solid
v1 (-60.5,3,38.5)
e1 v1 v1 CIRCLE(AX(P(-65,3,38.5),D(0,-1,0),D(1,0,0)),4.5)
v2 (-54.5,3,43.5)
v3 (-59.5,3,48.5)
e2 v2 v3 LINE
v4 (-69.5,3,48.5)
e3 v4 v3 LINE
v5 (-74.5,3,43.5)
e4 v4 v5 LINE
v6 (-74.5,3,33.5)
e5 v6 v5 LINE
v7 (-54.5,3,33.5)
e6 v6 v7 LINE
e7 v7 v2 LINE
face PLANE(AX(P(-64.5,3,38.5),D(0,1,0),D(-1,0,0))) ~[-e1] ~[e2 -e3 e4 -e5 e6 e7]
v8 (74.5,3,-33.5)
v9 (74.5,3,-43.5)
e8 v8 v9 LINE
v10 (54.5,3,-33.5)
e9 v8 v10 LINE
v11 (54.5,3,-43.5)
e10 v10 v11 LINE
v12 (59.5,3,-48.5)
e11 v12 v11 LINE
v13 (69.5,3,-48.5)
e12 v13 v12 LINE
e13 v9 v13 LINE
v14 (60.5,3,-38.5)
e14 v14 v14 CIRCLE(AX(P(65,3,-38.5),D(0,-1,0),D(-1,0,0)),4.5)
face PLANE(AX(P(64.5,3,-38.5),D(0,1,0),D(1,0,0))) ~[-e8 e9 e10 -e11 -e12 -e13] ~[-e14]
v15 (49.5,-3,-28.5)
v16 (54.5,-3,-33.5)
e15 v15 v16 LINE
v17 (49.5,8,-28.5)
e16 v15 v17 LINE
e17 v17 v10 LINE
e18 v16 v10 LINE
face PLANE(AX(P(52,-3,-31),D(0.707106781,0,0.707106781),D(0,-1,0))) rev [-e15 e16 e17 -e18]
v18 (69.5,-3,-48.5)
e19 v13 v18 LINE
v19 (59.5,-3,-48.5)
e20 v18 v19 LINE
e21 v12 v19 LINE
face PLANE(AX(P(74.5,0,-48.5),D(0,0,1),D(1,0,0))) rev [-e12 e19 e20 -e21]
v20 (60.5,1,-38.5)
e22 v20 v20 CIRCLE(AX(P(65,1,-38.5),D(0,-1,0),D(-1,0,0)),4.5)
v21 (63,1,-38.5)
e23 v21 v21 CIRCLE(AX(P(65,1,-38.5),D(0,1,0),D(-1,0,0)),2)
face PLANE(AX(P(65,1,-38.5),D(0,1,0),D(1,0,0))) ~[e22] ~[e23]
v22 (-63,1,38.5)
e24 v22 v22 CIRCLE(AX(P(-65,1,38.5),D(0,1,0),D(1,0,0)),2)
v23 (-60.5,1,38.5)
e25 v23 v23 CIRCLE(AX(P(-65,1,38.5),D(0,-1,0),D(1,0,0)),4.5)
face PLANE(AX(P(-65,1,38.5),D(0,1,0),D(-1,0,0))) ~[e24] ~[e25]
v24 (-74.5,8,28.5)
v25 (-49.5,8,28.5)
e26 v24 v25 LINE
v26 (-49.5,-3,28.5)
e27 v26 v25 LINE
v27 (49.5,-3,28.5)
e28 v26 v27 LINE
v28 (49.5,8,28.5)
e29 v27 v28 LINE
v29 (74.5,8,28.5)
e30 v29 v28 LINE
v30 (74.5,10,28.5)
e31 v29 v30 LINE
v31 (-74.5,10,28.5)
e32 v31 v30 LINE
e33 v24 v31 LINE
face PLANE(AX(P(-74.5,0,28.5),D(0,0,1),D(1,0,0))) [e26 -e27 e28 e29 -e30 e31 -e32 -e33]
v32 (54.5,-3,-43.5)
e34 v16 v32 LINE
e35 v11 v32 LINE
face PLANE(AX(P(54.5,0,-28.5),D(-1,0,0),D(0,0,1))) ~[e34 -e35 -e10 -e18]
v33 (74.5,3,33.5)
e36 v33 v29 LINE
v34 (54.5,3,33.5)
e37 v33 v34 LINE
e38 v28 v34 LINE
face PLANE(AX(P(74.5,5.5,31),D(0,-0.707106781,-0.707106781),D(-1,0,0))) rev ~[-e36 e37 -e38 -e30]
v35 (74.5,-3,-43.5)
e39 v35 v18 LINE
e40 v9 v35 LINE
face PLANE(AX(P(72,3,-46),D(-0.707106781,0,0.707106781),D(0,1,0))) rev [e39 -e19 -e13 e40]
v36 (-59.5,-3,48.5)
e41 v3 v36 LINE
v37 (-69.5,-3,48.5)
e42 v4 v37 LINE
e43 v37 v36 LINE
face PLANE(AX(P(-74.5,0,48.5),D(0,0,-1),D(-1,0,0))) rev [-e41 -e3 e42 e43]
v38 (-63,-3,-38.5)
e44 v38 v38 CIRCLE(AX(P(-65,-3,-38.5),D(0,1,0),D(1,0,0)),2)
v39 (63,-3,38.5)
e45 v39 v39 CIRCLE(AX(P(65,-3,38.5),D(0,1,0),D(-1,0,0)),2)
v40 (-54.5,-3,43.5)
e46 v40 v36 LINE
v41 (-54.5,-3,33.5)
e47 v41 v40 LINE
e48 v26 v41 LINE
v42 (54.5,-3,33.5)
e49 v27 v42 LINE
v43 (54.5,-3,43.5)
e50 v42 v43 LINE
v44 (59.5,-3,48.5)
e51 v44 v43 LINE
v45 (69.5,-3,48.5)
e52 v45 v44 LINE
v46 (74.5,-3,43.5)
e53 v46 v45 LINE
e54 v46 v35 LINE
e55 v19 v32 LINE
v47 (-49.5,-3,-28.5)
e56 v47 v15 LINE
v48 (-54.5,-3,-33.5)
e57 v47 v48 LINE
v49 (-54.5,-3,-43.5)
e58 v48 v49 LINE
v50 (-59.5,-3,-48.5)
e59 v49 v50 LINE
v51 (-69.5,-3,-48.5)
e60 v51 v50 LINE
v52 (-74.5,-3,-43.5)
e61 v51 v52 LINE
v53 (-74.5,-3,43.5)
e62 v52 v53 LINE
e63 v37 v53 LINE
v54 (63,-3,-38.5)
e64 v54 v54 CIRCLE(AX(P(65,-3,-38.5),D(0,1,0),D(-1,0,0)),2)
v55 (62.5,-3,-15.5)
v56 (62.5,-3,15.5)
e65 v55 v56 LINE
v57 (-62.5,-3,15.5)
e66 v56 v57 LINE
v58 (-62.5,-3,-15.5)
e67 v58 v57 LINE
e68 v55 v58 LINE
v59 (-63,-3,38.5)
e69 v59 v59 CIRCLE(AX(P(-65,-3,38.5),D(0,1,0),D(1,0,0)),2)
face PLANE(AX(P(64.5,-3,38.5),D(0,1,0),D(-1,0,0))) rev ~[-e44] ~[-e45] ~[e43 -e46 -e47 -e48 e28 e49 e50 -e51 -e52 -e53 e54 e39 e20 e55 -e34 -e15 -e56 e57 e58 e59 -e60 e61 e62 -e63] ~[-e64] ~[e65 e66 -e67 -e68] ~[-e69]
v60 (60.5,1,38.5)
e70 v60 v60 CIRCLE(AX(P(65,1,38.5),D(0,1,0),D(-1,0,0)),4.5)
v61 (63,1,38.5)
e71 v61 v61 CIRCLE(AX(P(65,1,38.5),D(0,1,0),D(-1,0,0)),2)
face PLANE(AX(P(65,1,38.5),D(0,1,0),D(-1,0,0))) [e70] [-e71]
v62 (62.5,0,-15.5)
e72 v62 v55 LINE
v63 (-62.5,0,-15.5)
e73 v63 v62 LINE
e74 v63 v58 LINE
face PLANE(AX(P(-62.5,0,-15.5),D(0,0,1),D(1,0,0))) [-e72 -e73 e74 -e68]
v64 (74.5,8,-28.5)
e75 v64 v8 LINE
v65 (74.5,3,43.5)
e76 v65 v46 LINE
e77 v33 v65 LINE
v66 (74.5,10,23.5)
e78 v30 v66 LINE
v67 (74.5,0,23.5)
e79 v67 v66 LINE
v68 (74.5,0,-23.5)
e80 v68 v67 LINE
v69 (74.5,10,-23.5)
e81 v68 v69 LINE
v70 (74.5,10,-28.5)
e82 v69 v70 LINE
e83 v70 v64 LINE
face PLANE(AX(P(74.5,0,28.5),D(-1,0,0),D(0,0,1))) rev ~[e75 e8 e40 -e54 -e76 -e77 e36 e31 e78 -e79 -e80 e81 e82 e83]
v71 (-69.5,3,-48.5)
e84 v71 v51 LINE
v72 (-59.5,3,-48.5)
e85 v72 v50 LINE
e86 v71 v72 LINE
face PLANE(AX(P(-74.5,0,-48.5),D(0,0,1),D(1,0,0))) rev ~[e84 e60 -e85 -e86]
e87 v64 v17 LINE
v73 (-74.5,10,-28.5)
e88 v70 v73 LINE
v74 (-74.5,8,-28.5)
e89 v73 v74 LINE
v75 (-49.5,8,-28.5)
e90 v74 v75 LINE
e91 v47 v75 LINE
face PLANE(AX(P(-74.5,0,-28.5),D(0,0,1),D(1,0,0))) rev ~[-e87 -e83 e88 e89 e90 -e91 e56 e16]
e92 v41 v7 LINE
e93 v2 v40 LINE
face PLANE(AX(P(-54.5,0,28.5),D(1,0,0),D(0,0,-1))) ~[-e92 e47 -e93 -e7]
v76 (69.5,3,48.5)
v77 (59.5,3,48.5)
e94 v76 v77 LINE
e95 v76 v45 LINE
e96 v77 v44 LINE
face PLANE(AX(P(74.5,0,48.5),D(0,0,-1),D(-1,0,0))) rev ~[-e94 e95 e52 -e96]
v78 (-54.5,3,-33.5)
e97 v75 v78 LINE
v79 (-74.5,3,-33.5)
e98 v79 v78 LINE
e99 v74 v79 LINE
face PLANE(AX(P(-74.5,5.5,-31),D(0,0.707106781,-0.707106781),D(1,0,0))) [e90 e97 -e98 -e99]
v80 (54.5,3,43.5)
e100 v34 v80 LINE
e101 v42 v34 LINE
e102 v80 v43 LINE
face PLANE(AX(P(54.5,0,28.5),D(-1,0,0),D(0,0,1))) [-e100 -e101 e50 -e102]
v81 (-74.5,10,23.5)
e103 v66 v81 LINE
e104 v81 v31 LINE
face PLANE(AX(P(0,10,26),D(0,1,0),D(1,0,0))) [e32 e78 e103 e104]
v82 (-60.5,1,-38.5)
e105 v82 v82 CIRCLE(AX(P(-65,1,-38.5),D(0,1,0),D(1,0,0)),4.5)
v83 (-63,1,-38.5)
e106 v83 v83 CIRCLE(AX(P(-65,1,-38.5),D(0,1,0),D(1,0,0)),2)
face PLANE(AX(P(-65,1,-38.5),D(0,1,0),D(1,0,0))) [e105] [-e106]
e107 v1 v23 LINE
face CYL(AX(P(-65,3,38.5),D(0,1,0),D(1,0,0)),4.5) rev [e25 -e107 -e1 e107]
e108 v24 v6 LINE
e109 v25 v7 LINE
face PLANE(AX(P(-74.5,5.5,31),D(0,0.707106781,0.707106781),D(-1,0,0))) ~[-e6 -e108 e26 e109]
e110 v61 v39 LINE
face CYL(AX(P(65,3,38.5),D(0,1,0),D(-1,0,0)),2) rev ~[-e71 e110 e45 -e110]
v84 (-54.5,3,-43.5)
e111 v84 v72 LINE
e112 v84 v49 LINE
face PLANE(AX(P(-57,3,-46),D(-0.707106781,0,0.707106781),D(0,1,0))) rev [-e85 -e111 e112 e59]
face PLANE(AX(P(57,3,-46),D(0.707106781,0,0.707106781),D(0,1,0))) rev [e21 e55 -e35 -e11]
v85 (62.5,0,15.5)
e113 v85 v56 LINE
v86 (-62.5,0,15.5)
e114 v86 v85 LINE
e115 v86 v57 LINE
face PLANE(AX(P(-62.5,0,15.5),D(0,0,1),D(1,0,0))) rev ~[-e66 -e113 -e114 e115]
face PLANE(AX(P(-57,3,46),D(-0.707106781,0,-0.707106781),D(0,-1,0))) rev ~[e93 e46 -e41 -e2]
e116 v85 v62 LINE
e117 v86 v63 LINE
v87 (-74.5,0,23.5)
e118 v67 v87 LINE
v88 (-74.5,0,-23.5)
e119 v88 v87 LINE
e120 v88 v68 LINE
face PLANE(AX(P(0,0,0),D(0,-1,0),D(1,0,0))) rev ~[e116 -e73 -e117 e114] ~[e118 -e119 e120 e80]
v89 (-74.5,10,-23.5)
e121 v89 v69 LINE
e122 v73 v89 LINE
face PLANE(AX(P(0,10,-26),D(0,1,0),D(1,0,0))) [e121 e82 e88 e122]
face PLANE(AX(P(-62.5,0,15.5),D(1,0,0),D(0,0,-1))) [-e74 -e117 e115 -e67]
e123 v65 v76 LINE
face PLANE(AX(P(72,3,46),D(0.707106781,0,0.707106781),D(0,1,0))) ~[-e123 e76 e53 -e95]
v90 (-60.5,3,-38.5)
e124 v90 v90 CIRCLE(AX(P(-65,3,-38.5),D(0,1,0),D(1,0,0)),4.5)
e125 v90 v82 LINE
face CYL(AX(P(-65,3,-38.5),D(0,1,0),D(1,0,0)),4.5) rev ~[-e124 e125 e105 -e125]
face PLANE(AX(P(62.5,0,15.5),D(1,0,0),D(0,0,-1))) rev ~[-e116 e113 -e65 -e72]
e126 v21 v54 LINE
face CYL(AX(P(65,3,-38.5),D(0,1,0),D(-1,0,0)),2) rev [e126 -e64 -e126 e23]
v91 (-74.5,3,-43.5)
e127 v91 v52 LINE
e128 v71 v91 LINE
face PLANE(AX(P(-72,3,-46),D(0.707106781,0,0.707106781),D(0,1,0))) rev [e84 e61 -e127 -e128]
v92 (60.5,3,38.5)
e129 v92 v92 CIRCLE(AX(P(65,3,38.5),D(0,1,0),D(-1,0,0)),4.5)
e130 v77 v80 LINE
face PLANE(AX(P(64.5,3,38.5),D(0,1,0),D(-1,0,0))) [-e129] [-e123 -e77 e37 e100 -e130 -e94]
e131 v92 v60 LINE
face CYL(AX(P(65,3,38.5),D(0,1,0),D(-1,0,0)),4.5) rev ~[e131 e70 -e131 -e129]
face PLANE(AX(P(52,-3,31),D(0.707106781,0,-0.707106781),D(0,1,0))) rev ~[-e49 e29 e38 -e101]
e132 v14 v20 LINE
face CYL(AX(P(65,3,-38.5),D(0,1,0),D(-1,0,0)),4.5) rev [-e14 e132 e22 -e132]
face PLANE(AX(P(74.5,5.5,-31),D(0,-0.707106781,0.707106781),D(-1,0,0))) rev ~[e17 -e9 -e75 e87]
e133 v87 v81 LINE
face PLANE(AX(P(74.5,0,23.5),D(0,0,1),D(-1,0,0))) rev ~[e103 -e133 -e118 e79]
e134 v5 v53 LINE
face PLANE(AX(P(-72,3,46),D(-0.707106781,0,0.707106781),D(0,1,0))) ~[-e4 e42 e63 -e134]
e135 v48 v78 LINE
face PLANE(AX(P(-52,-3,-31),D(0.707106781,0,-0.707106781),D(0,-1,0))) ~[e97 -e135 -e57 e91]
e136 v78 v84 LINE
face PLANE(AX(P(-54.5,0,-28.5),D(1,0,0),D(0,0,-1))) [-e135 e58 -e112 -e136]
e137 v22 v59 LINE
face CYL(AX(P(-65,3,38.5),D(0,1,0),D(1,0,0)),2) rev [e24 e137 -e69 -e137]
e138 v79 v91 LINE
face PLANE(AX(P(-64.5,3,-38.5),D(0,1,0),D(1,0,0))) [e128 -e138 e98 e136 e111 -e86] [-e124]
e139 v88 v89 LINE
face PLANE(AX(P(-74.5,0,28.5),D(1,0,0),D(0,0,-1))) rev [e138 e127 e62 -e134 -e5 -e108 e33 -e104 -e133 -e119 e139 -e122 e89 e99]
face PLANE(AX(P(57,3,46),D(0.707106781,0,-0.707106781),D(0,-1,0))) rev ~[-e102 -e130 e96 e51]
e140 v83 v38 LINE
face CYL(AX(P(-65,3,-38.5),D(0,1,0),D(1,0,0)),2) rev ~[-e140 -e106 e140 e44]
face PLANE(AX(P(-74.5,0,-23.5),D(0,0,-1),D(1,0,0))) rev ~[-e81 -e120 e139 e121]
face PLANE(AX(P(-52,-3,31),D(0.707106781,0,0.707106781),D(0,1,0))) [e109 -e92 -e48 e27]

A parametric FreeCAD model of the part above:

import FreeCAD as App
import Part
import Sketcher

V = App.Vector


def edges_at(feature, points):
    """Names of the edges that pass closest to the given points."""
    edges = feature.Shape.Edges
    near = lambda p: min(range(len(edges)), key=lambda i: edges[i].distToShape(Part.Vertex(*p))[0])
    return sorted({f"Edge{near(p) + 1}" for p in points})

doc = App.newDocument("Part")
body = doc.addObject("PartDesign::Body", "Body")

sketch1 = body.newObject("Sketcher::SketchObject", "Sketch")
sketch1.AttachmentSupport = (doc.getObject("XZ_Plane"), [""])
sketch1.MapMode = "FlatFace"
sketch1.addGeometry([
    Part.LineSegment(V(74, -28, 0), V(-74, -28, 0)),
    Part.LineSegment(V(-74, -28, 0), V(-74, -24, 0)),
    Part.LineSegment(V(-74, -24, 0), V(74, -24, 0)),
    Part.LineSegment(V(74, -24, 0), V(74, -28, 0)),
], False)
sketch1.addConstraint([
    Sketcher.Constraint("Coincident", 0, 2, 1, 1),
    Sketcher.Constraint("Coincident", 1, 2, 2, 1),
    Sketcher.Constraint("Coincident", 2, 2, 3, 1),
    Sketcher.Constraint("Coincident", 3, 2, 0, 1),
    Sketcher.Constraint("Horizontal", 0),
    Sketcher.Constraint("Vertical", 1),
    Sketcher.Constraint("Horizontal", 2),
    Sketcher.Constraint("Vertical", 3),
    Sketcher.Constraint("DistanceX", 0, 2, 0, 1, 149.0),
    Sketcher.Constraint("DistanceY", 1, 1, 1, 2, 5.0),
    Sketcher.Constraint("DistanceX", 0, 2, -1, 1, 74.5),
    Sketcher.Constraint("DistanceY", 0, 2, -1, 1, 28.5),
])
pad1 = body.newObject("PartDesign::Pad", "Pad")
pad1.Profile = sketch1
pad1.Length = 10
pad1.Reversed = True
body2 = doc.addObject("PartDesign::Body", "Body001")

sketch2 = body2.newObject("Sketcher::SketchObject", "Sketch001")
sketch2.AttachmentSupport = (doc.getObject("XZ_Plane001"), [""])
sketch2.MapMode = "FlatFace"
sketch2.addGeometry([
    Part.LineSegment(V(-74, 24, 0), V(-74, 28, 0)),
    Part.LineSegment(V(-74, 28, 0), V(74, 28, 0)),
    Part.LineSegment(V(74, 28, 0), V(74, 24, 0)),
    Part.LineSegment(V(74, 24, 0), V(-74, 24, 0)),
], False)
sketch2.addConstraint([
    Sketcher.Constraint("Coincident", 0, 2, 1, 1),
    Sketcher.Constraint("Coincident", 1, 2, 2, 1),
    Sketcher.Constraint("Coincident", 2, 2, 3, 1),
    Sketcher.Constraint("Coincident", 3, 2, 0, 1),
    Sketcher.Constraint("Vertical", 0),
    Sketcher.Constraint("Horizontal", 1),
    Sketcher.Constraint("Vertical", 2),
    Sketcher.Constraint("Horizontal", 3),
    Sketcher.Constraint("DistanceX", 1, 1, 1, 2, 149.0),
    Sketcher.Constraint("DistanceY", 0, 1, 0, 2, 5.0),
    Sketcher.Constraint("DistanceX", 0, 2, -1, 1, 74.5),
    Sketcher.Constraint("DistanceY", -1, 1, 0, 2, 28.5),
])
pad2 = body2.newObject("PartDesign::Pad", "Pad001")
pad2.Profile = sketch2
pad2.Length = 10
pad2.Reversed = True
body.AllowCompound = True
doc.recompute()

boolean = body.newObject("PartDesign::Boolean", "Boolean")
boolean.Type = "Fuse"
boolean.addObjects([body2])

sketch3 = body.newObject("Sketcher::SketchObject", "Sketch002")
sketch3.AttachmentSupport = (doc.getObject("XZ_Plane"), [""])
sketch3.MapMode = "FlatFace"
sketch3.addGeometry([
    Part.LineSegment(V(-74, 28, 0), V(-74, -28, 0)),
    Part.LineSegment(V(-74, -28, 0), V(74, -28, 0)),
    Part.LineSegment(V(74, -28, 0), V(74, 28, 0)),
    Part.LineSegment(V(74, 28, 0), V(-74, 28, 0)),
], False)
sketch3.addConstraint([
    Sketcher.Constraint("Coincident", 0, 2, 1, 1),
    Sketcher.Constraint("Coincident", 1, 2, 2, 1),
    Sketcher.Constraint("Coincident", 2, 2, 3, 1),
    Sketcher.Constraint("Coincident", 3, 2, 0, 1),
    Sketcher.Constraint("Vertical", 0),
    Sketcher.Constraint("Horizontal", 1),
    Sketcher.Constraint("Vertical", 2),
    Sketcher.Constraint("Horizontal", 3),
    Sketcher.Constraint("Symmetric", 0, 2, 2, 2, -1, 1),
    Sketcher.Constraint("DistanceX", 1, 1, 1, 2, 149.0),
    Sketcher.Constraint("DistanceY", 0, 2, 0, 1, 57.0),
])
pad3 = body.newObject("PartDesign::Pad", "Pad002")
pad3.Profile = sketch3
pad3.Length = 3

sketch4 = body.newObject("Sketcher::SketchObject", "Sketch003")
sketch4.AttachmentSupport = (doc.getObject("XZ_Plane"), [""])
sketch4.MapMode = "FlatFace"
sketch4.addGeometry([
    Part.LineSegment(V(-62, -16, 0), V(-62, 16, 0)),
    Part.LineSegment(V(-62, 16, 0), V(62, 16, 0)),
    Part.LineSegment(V(62, 16, 0), V(62, -16, 0)),
    Part.LineSegment(V(62, -16, 0), V(-62, -16, 0)),
], False)
sketch4.addConstraint([
    Sketcher.Constraint("Coincident", 0, 2, 1, 1),
    Sketcher.Constraint("Coincident", 1, 2, 2, 1),
    Sketcher.Constraint("Coincident", 2, 2, 3, 1),
    Sketcher.Constraint("Coincident", 3, 2, 0, 1),
    Sketcher.Constraint("Vertical", 0),
    Sketcher.Constraint("Horizontal", 1),
    Sketcher.Constraint("Vertical", 2),
    Sketcher.Constraint("Horizontal", 3),
    Sketcher.Constraint("Symmetric", 0, 2, 2, 2, -1, 1),
    Sketcher.Constraint("DistanceX", 1, 1, 1, 2, 125.0),
    Sketcher.Constraint("DistanceY", 0, 1, 0, 2, 31.0),
])
pocket1 = body.newObject("PartDesign::Pocket", "Pocket")
pocket1.Profile = sketch4
pocket1.Length = 20
pocket1.Reversed = True

sketch5 = body.newObject("Sketcher::SketchObject", "Sketch004")
sketch5.AttachmentSupport = (doc.getObject("XZ_Plane"), [""])
sketch5.MapMode = "FlatFace"
sketch5.addGeometry([
    Part.LineSegment(V(-74, -48, 0), V(-74, -28, 0)),
    Part.LineSegment(V(-74, -28, 0), V(-54, -28, 0)),
    Part.LineSegment(V(-54, -28, 0), V(-54, -48, 0)),
    Part.LineSegment(V(-54, -48, 0), V(-74, -48, 0)),
], False)
sketch5.addConstraint([
    Sketcher.Constraint("Coincident", 0, 2, 1, 1),
    Sketcher.Constraint("Coincident", 1, 2, 2, 1),
    Sketcher.Constraint("Coincident", 2, 2, 3, 1),
    Sketcher.Constraint("Coincident", 3, 2, 0, 1),
    Sketcher.Constraint("Vertical", 0),
    Sketcher.Constraint("Horizontal", 1),
    Sketcher.Constraint("Vertical", 2),
    Sketcher.Constraint("Horizontal", 3),
    Sketcher.Constraint("Equal", 3, 0),
    Sketcher.Constraint("DistanceX", 1, 1, 1, 2, 20.0),
    Sketcher.Constraint("DistanceX", 0, 2, -1, 1, 74.5),
    Sketcher.Constraint("DistanceY", 0, 2, -1, 1, 28.5),
])
pad4 = body.newObject("PartDesign::Pad", "Pad003")
pad4.Profile = sketch5
pad4.Length = 6
pad4.Midplane = True

sketch6 = body.newObject("Sketcher::SketchObject", "Sketch005")
sketch6.AttachmentSupport = (doc.getObject("XZ_Plane"), [""])
sketch6.MapMode = "FlatFace"
sketch6.AttachmentOffset = App.Placement(V(0, 0, -3), App.Rotation())
sketch6.addGeometry(Part.Circle(V(-65, -38.5, 0), V(0, 0, 1), 2), False)
sketch6.addConstraint([
    Sketcher.Constraint("Diameter", 0, 4.0),
    Sketcher.Constraint("DistanceX", 0, 3, -1, 1, 65.0),
    Sketcher.Constraint("DistanceY", 0, 3, -1, 1, 38.5),
])
pocket2 = body.newObject("PartDesign::Pocket", "Pocket001")
pocket2.Profile = sketch6
pocket2.Length = 20
pocket2.Reversed = True

sketch7 = body.newObject("Sketcher::SketchObject", "Sketch006")
sketch7.AttachmentSupport = (doc.getObject("XZ_Plane"), [""])
sketch7.MapMode = "FlatFace"
sketch7.AttachmentOffset = App.Placement(V(0, 0, -3), App.Rotation())
sketch7.addGeometry(Part.Circle(V(-65, -38.5, 0), V(0, 0, 1), 4.5), False)
sketch7.addConstraint([
    Sketcher.Constraint("Diameter", 0, 9.0),
    Sketcher.Constraint("DistanceX", 0, 3, -1, 1, 65.0),
    Sketcher.Constraint("DistanceY", 0, 3, -1, 1, 38.5),
])
pocket3 = body.newObject("PartDesign::Pocket", "Pocket002")
pocket3.Profile = sketch7
pocket3.Length = 2
pocket3.Reversed = True
doc.recompute()

mirrored = body.newObject("PartDesign::Mirrored", "Mirrored")
mirrored.Originals = [pad4, pocket2, pocket3]
mirrored.MirrorPlane = (doc.getObject("XY_Plane"), [""])
body.Tip = mirrored
doc.recompute()

mirrored2 = body.newObject("PartDesign::Mirrored", "Mirrored001")
mirrored2.Originals = [pad4, pocket3, pocket2]
mirrored2.MirrorPlane = (doc.getObject("YZ_Plane"), [""])
body.Tip = mirrored2

sketch8 = body.newObject("Sketcher::SketchObject", "Sketch007")
sketch8.AttachmentSupport = (doc.getObject("XZ_Plane"), [""])
sketch8.MapMode = "FlatFace"
sketch8.addGeometry([
    Part.LineSegment(V(74, 48, 0), V(74, 28, 0)),
    Part.LineSegment(V(74, 28, 0), V(54, 28, 0)),
    Part.LineSegment(V(54, 28, 0), V(54, 48, 0)),
    Part.LineSegment(V(54, 48, 0), V(74, 48, 0)),
], False)
sketch8.addConstraint([
    Sketcher.Constraint("Coincident", 0, 2, 1, 1),
    Sketcher.Constraint("Coincident", 1, 2, 2, 1),
    Sketcher.Constraint("Coincident", 2, 2, 3, 1),
    Sketcher.Constraint("Coincident", 3, 2, 0, 1),
    Sketcher.Constraint("Vertical", 0),
    Sketcher.Constraint("Horizontal", 1),
    Sketcher.Constraint("Vertical", 2),
    Sketcher.Constraint("Horizontal", 3),
    Sketcher.Constraint("Equal", 3, 0),
    Sketcher.Constraint("DistanceX", 1, 2, 1, 1, 20.0),
    Sketcher.Constraint("DistanceX", -1, 1, 0, 2, 74.5),
    Sketcher.Constraint("DistanceY", -1, 1, 0, 2, 28.5),
])
pad5 = body.newObject("PartDesign::Pad", "Pad004")
pad5.Profile = sketch8
pad5.Length = 6
pad5.Midplane = True

sketch9 = body.newObject("Sketcher::SketchObject", "Sketch008")
sketch9.AttachmentSupport = (doc.getObject("XZ_Plane"), [""])
sketch9.MapMode = "FlatFace"
sketch9.AttachmentOffset = App.Placement(V(0, 0, -3), App.Rotation())
sketch9.addGeometry(Part.Circle(V(65, 38.5, 0), V(0, 0, 1), 2), False)
sketch9.addConstraint([
    Sketcher.Constraint("Diameter", 0, 4.0),
    Sketcher.Constraint("DistanceX", -1, 1, 0, 3, 65.0),
    Sketcher.Constraint("DistanceY", -1, 1, 0, 3, 38.5),
])
pocket4 = body.newObject("PartDesign::Pocket", "Pocket003")
pocket4.Profile = sketch9
pocket4.Length = 20
pocket4.Reversed = True

sketch10 = body.newObject("Sketcher::SketchObject", "Sketch009")
sketch10.AttachmentSupport = (doc.getObject("XZ_Plane"), [""])
sketch10.MapMode = "FlatFace"
sketch10.AttachmentOffset = App.Placement(V(0, 0, -3), App.Rotation())
sketch10.addGeometry(Part.Circle(V(65, 38.5, 0), V(0, 0, 1), 4.5), False)
sketch10.addConstraint([
    Sketcher.Constraint("Diameter", 0, 9.0),
    Sketcher.Constraint("DistanceX", -1, 1, 0, 3, 65.0),
    Sketcher.Constraint("DistanceY", -1, 1, 0, 3, 38.5),
])
pocket5 = body.newObject("PartDesign::Pocket", "Pocket004")
pocket5.Profile = sketch10
pocket5.Length = 2
pocket5.Reversed = True
doc.recompute()

chamfer = body.newObject("PartDesign::Chamfer", "Chamfer")
chamfer.Base = (pocket5, edges_at(pocket5, [
    (74.5, 0, 48.5),
    (54.5, 0, 28.5),
    (54.5, 0, 48.5),
    (64.5, 3, 28.5),
    (-74.5, 0, -48.5),
    (-54.5, 0, -28.5),
    (-54.5, 0, -48.5),
    (-64.5, 3, -28.5),
    (74.5, 0, -48.5),
    (54.5, 0, -48.5),
    (54.5, 0, -28.5),
    (64.5, 3, -28.5),
    (-74.5, 0, 48.5),
    (-54.5, 0, 48.5),
    (-54.5, 0, 28.5),
    (-64.5, 3, 28.5),
]))
chamfer.Size = 5

doc.recompute()
